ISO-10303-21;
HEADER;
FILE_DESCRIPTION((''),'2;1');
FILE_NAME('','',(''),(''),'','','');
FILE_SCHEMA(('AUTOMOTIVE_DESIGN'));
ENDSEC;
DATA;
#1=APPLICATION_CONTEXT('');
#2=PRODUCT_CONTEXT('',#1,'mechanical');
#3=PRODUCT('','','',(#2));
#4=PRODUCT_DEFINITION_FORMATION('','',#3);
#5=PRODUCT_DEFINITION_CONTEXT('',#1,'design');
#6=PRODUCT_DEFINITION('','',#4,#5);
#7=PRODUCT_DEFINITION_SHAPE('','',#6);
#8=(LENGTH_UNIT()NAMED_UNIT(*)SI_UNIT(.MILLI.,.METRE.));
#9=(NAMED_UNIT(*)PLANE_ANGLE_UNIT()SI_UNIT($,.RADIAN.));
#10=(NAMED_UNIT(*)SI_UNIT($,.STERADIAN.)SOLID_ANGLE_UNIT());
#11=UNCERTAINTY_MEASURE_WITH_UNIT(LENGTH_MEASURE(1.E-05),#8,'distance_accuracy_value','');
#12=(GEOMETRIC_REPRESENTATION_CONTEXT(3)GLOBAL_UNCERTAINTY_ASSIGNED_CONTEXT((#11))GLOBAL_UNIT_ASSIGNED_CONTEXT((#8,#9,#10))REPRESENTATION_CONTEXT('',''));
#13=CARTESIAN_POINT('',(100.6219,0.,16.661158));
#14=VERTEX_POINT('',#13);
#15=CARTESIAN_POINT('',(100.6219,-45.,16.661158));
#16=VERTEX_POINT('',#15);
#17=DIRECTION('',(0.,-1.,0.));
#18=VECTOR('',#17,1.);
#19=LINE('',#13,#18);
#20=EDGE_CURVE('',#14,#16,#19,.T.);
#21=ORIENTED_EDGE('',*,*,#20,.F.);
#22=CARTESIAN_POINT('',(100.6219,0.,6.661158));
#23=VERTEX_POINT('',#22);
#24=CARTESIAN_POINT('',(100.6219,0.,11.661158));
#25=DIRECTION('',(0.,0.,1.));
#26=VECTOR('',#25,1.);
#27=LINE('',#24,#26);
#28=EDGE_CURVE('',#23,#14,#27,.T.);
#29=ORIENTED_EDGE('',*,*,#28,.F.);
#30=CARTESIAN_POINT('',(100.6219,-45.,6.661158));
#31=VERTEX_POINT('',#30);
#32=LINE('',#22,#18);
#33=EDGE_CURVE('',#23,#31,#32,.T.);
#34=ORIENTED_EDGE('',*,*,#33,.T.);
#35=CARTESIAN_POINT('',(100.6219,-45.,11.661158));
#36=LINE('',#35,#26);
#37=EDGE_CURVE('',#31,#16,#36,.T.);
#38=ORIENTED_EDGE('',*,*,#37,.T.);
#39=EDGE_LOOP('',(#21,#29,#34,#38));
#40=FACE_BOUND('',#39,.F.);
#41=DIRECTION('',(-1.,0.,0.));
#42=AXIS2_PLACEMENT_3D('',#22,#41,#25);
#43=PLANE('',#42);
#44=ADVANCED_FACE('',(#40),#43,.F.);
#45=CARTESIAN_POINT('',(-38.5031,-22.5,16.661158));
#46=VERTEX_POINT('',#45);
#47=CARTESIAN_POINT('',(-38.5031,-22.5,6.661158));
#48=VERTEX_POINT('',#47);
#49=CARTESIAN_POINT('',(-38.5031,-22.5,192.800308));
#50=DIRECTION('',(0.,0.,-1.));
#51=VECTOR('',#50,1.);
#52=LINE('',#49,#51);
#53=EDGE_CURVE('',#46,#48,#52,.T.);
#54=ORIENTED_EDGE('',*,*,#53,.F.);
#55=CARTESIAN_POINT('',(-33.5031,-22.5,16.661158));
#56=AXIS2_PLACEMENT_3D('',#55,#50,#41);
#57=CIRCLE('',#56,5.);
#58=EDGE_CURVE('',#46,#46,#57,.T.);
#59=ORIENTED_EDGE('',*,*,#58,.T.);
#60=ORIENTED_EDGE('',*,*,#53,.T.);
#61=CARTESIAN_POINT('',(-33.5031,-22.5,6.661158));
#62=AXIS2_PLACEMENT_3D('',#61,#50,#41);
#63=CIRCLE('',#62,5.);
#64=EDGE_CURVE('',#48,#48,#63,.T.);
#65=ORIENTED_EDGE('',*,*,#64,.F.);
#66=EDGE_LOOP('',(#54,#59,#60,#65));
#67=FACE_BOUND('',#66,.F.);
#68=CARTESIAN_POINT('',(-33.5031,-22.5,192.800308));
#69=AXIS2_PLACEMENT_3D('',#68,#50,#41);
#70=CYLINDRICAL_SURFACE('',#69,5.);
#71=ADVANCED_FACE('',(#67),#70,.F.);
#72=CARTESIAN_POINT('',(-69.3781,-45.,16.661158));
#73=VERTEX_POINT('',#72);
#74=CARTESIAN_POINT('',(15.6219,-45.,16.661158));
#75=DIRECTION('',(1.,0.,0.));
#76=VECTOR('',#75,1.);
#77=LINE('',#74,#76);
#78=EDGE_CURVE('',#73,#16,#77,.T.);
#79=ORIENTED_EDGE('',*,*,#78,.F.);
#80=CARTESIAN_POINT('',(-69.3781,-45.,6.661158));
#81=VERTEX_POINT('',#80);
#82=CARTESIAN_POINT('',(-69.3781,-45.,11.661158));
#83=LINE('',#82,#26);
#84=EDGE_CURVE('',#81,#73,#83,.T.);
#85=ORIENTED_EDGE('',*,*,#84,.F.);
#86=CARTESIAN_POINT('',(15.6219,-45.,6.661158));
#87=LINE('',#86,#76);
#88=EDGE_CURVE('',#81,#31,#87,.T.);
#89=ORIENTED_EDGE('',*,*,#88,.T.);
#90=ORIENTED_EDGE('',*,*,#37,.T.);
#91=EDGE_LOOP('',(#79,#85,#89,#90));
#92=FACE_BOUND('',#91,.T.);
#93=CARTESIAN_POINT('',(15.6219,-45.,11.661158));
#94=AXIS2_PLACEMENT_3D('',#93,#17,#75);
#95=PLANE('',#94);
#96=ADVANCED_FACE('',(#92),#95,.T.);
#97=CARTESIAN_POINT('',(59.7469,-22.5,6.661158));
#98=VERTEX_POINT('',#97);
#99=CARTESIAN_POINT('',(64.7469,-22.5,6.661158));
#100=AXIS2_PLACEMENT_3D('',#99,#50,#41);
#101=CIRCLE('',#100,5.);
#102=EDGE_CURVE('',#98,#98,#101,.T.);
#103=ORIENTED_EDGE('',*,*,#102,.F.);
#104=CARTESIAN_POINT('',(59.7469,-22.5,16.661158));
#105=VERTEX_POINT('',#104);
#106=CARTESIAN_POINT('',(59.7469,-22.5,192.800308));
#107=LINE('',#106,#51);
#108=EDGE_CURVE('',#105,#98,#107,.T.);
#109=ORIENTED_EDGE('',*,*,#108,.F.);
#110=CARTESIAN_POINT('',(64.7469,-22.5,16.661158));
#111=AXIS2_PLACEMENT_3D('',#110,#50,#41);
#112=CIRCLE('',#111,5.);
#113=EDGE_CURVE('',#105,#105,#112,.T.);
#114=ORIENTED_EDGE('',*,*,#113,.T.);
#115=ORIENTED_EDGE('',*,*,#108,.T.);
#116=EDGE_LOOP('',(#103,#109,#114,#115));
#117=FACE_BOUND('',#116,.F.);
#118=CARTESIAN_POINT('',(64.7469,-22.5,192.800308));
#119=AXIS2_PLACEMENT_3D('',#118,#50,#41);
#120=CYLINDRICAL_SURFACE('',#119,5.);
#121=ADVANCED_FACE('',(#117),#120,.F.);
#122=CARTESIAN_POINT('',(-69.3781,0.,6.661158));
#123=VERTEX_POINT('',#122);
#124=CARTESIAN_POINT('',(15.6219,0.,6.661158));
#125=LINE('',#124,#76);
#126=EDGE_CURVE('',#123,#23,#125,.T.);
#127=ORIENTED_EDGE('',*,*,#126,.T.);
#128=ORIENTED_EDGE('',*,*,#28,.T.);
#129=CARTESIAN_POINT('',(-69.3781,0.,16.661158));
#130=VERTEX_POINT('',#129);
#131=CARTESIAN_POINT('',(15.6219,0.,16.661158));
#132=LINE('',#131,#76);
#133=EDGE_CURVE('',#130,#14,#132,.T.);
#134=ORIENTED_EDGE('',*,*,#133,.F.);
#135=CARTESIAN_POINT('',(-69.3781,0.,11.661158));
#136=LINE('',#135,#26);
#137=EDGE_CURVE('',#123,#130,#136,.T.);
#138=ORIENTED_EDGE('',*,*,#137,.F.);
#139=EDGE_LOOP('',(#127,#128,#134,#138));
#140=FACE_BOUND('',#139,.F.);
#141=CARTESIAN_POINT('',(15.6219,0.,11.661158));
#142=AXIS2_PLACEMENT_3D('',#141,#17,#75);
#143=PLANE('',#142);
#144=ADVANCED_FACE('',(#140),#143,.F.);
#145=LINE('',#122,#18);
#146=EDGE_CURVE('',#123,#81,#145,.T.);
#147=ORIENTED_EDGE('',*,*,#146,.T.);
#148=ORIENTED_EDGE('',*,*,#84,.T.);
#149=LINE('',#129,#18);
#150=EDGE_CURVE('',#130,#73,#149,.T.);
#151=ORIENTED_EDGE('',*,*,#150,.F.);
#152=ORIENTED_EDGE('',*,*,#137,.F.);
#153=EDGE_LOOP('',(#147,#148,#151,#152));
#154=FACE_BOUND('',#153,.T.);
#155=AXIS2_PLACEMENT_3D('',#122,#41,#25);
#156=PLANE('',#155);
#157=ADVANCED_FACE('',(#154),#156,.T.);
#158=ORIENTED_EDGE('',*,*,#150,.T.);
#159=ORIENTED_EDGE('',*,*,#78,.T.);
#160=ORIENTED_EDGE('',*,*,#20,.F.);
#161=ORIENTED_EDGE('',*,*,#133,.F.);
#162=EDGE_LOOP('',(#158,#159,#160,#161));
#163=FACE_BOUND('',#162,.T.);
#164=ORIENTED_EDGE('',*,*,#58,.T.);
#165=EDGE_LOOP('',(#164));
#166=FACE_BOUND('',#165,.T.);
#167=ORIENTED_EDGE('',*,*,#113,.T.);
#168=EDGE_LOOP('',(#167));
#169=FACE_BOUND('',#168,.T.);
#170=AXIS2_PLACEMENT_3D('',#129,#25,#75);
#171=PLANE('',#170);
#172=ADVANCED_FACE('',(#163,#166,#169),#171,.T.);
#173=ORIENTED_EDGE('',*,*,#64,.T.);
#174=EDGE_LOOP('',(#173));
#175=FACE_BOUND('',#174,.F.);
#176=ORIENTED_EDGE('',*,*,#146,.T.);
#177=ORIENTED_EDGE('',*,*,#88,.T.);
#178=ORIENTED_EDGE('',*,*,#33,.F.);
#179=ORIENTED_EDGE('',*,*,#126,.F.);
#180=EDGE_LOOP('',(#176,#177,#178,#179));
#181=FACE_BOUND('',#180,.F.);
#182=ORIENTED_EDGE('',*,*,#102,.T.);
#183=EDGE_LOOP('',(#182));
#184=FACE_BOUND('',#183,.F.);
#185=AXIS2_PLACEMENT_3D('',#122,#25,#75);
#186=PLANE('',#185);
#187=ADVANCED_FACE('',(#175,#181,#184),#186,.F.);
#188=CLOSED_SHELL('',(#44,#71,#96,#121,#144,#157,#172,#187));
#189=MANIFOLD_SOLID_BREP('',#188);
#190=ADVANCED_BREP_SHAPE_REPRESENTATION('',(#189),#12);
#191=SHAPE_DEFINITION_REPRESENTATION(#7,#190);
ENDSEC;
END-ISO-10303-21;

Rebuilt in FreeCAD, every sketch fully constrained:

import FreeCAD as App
import Part
import Sketcher
from FreeCAD import Vector
Q = App.Units.Quantity


def add_polygon(sketch, points):
    """Adds a closed chain of lines whose ends are joined by coincident constraints."""
    first, n = sketch.GeometryCount, len(points)
    for a, b in zip(points, points[1:] + points[:1]):
        sketch.addGeometry(Part.LineSegment(App.Vector(*a, 0), App.Vector(*b, 0)), False)
    for i in range(n):
        sketch.addConstraint(Sketcher.Constraint("Coincident", first + i, 2, first + (i + 1) % n, 1))

doc = App.newDocument("Part")
body = doc.addObject("PartDesign::Body", "Body")

sketch1 = body.newObject("Sketcher::SketchObject", "Sketch")
sketch1.AttachmentSupport = (doc.getObject("XZ_Plane"), [""])
sketch1.MapMode = "FlatFace"
add_polygon(sketch1, [(-69, 17), (-69, 7), (101, 7), (101, 17)])
sketch1.addConstraint([
    Sketcher.Constraint("Vertical", 0),
    Sketcher.Constraint("Horizontal", 1),
    Sketcher.Constraint("Vertical", 2),
    Sketcher.Constraint("Horizontal", 3),
    Sketcher.Constraint("DistanceX", 1, 1, 1, 2, Q("170 mm")),
    Sketcher.Constraint("DistanceY", 0, 2, 0, 1, Q("10 mm")),
    Sketcher.Constraint("DistanceX", 0, 2, -1, 1, Q("69.3781 mm")),
    Sketcher.Constraint("DistanceY", -1, 1, 0, 2, Q("6.661158 mm")),
])
pad1 = body.newObject("PartDesign::Pad", "Pad")
pad1.Profile = sketch1
pad1.Length = 45

sketch2 = body.newObject("Sketcher::SketchObject", "Sketch001")
sketch2.AttachmentSupport = (doc.getObject("XY_Plane"), [""])
sketch2.MapMode = "FlatFace"
sketch2.AttachmentOffset = App.Placement(Vector(0, 0, 16.661158), App.Rotation())
sketch2.addGeometry([
    Part.Circle(Vector(-34, -22, 0), Vector(0, 0, 1), 5),
    Part.Circle(Vector(65, -22, 0), Vector(0, 0, 1), 5),
], False)
sketch2.addConstraint([
    Sketcher.Constraint("Equal", 0, 1),
    Sketcher.Constraint("Horizontal", 0, 3, 1, 3),
    Sketcher.Constraint("Diameter", 0, Q("10 mm")),
    Sketcher.Constraint("DistanceY", 0, 3, -1, 1, Q("22.5 mm")),
    Sketcher.Constraint("DistanceX", 0, 3, 1, 3, Q("98.25 mm")),
    Sketcher.Constraint("DistanceX", 0, 3, -1, 1, Q("33.5031 mm")),
])
doc.recompute()
hole = body.newObject("PartDesign::Hole", "Hole")
hole.Profile = sketch2
hole.ThreadType = "None"
hole.Diameter = 10
hole.DepthType = "ThroughAll"

doc.recompute()
